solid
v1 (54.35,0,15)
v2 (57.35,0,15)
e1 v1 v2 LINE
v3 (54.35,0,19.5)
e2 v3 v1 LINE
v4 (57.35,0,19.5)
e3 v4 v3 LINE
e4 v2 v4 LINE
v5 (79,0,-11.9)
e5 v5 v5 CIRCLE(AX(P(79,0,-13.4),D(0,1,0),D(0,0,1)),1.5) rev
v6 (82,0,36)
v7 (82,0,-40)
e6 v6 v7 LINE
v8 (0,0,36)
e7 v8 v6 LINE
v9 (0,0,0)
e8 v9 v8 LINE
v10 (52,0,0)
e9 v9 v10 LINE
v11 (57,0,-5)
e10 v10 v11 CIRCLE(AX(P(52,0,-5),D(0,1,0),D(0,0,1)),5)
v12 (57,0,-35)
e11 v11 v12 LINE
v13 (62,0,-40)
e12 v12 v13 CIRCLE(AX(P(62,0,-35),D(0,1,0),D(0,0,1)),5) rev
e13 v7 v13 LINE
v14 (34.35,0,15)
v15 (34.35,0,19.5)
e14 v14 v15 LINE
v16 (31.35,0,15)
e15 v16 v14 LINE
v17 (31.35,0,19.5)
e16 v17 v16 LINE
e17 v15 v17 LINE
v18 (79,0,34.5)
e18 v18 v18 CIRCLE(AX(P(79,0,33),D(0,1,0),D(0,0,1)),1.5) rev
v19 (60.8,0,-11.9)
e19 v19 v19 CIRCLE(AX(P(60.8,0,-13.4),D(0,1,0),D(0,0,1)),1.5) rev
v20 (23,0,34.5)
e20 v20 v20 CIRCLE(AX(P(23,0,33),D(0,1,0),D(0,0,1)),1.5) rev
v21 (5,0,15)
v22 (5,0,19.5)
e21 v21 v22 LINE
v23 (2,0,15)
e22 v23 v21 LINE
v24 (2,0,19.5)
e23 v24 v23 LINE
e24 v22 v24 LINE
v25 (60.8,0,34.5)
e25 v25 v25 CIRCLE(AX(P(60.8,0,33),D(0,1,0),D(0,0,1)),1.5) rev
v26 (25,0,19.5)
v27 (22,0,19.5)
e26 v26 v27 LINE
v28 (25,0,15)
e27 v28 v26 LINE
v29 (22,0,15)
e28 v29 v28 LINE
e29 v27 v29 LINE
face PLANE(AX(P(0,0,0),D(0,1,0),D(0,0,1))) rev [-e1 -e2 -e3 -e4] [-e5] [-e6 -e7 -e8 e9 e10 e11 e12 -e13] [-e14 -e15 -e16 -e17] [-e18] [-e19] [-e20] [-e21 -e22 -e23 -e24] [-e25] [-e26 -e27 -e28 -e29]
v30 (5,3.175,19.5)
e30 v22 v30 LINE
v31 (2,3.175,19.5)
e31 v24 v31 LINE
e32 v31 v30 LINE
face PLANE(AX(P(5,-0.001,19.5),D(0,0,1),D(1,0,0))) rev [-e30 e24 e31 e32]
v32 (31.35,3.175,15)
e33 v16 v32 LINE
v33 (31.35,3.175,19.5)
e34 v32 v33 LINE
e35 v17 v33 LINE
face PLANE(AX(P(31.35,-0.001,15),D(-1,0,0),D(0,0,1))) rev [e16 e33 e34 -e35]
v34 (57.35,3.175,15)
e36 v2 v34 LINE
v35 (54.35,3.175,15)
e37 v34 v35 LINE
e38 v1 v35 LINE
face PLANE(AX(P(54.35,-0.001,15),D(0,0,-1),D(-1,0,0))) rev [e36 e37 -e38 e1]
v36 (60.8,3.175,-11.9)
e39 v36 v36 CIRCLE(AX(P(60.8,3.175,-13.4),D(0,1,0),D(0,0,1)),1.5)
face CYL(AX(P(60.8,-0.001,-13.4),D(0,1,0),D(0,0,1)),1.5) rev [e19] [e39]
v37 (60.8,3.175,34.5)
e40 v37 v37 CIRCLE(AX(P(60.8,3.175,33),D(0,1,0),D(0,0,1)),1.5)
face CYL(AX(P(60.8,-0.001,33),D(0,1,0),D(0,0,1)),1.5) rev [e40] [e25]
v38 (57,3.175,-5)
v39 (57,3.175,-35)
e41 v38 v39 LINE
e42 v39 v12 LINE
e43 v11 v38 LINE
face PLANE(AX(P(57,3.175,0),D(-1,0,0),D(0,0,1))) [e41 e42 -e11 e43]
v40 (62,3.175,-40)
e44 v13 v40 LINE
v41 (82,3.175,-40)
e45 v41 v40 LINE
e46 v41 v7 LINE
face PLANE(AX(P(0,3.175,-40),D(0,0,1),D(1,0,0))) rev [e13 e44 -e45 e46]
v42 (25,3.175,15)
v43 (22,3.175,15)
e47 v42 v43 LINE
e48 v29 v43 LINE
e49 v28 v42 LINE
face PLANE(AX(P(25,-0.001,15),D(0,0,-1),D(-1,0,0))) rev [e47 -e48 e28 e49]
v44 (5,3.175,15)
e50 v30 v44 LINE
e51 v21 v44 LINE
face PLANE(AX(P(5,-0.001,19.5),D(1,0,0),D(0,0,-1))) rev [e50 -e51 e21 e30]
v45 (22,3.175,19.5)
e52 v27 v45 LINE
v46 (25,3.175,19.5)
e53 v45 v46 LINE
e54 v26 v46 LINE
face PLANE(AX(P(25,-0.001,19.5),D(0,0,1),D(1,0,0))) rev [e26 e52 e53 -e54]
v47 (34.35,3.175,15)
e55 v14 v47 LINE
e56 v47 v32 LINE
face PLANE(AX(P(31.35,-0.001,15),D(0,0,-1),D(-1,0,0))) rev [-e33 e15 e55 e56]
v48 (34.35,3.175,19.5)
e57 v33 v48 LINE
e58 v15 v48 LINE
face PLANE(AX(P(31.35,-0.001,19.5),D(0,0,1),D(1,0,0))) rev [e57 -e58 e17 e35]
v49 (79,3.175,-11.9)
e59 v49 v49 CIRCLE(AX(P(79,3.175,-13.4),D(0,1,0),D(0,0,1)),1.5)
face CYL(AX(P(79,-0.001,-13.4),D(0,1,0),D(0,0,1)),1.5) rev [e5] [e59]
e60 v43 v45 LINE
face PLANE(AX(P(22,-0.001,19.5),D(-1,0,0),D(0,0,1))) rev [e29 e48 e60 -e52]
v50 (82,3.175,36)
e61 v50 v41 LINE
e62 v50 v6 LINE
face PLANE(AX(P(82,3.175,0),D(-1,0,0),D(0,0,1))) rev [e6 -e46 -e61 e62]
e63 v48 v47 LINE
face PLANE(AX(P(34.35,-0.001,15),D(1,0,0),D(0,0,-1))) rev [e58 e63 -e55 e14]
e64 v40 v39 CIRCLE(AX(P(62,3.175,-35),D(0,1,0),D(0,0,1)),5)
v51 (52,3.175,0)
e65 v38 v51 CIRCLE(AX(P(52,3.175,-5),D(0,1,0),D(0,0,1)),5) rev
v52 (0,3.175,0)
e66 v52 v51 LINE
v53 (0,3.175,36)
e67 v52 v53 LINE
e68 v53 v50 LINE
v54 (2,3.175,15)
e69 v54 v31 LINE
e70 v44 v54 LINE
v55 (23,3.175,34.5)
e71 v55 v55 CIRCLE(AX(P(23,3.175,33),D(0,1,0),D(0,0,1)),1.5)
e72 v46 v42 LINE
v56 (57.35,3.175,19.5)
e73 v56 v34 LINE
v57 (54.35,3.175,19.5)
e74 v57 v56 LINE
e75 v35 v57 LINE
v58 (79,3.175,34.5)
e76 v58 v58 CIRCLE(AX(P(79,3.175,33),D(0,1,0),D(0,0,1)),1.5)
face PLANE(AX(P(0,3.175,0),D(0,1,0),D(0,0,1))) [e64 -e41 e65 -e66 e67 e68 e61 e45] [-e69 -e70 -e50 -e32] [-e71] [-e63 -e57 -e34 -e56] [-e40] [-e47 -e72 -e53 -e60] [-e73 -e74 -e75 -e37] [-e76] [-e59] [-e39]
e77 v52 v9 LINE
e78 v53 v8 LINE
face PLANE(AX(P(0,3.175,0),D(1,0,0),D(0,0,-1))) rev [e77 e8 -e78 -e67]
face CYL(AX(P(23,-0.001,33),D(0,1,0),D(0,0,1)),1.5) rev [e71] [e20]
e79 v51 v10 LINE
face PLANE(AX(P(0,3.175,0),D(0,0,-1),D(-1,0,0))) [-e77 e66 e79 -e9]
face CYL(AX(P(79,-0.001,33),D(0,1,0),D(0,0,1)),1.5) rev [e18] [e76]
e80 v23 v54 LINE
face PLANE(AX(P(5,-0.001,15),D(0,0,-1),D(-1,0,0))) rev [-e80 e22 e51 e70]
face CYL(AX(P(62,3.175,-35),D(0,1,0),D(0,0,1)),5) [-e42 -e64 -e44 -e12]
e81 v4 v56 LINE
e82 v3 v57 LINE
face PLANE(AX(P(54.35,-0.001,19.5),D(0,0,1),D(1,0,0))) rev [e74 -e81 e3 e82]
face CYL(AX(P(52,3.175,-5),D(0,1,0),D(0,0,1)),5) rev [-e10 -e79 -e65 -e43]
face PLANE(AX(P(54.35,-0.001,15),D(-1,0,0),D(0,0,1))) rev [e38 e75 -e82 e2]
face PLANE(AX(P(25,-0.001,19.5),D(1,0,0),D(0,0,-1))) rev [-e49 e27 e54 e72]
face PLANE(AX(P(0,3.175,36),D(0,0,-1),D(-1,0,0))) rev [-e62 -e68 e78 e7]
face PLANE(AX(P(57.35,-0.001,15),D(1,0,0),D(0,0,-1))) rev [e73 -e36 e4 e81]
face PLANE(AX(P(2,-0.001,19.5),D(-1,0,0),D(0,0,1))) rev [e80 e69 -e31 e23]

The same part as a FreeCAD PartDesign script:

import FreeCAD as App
import Part
import Sketcher


def edges_at(feature, points):
    """Names of the edges that pass closest to the given points."""
    edges = feature.Shape.Edges
    near = lambda p: min(range(len(edges)), key=lambda i: edges[i].distToShape(Part.Vertex(*p))[0])
    return sorted({f"Edge{near(p) + 1}" for p in points})

doc = App.newDocument("Part")
body = doc.addObject("PartDesign::Body", "Body")

# Sketch on XZ plane
sketch1 = doc.addObject("Sketcher::SketchObject", "Sketch")
body.addObject(sketch1)
sketch1.AttachmentSupport = (doc.XZ_Plane, [""])
sketch1.MapMode = "FlatFace"
sketch1.addGeometry(Part.LineSegment(App.Vector(57, -40, 0), App.Vector(57, 0, 0)), False)
sketch1.addGeometry(Part.LineSegment(App.Vector(57, 0, 0), App.Vector(0, 0, 0)), False)
sketch1.addGeometry(Part.LineSegment(App.Vector(0, 0, 0), App.Vector(0, 36, 0)), False)
sketch1.addGeometry(Part.LineSegment(App.Vector(0, 36, 0), App.Vector(82, 36, 0)), False)
sketch1.addGeometry(Part.LineSegment(App.Vector(82, 36, 0), App.Vector(82, -40, 0)), False)
sketch1.addGeometry(Part.LineSegment(App.Vector(82, -40, 0), App.Vector(57, -40, 0)), False)
sketch1.addConstraint(Sketcher.Constraint("Coincident", 0, 2, 1, 1))
sketch1.addConstraint(Sketcher.Constraint("Coincident", 1, 2, 2, 1))
sketch1.addConstraint(Sketcher.Constraint("Coincident", 2, 2, 3, 1))
sketch1.addConstraint(Sketcher.Constraint("Coincident", 3, 2, 4, 1))
sketch1.addConstraint(Sketcher.Constraint("Coincident", 4, 2, 5, 1))
sketch1.addConstraint(Sketcher.Constraint("Coincident", 5, 2, 0, 1))
sketch1.addConstraint(Sketcher.Constraint("Vertical", 0))
sketch1.addConstraint(Sketcher.Constraint("Horizontal", 1))
sketch1.addConstraint(Sketcher.Constraint("Vertical", 2))
sketch1.addConstraint(Sketcher.Constraint("Horizontal", 3))
sketch1.addConstraint(Sketcher.Constraint("Vertical", 4))
sketch1.addConstraint(Sketcher.Constraint("Horizontal", 5))
sketch1.addConstraint(Sketcher.Constraint("Coincident", 1, 2, -1, 1))
sketch1.addConstraint(Sketcher.Constraint("DistanceX", 1, 2, 1, 1, 57.0))
sketch1.addConstraint(Sketcher.Constraint("DistanceX", 3, 1, 3, 2, 82.0))
sketch1.addConstraint(Sketcher.Constraint("DistanceY", 0, 1, 0, 2, 40.0))
sketch1.addConstraint(Sketcher.Constraint("DistanceY", 2, 1, 2, 2, 36.0))
pad1 = doc.addObject("PartDesign::Pad", "Pad")
body.addObject(pad1)
pad1.Profile = sketch1
pad1.Length = 3.175
pad1.Reversed = True

# Sketch on XZ plane
sketch2 = doc.addObject("Sketcher::SketchObject", "Sketch001")
body.addObject(sketch2)
sketch2.AttachmentSupport = (doc.XZ_Plane, [""])
sketch2.MapMode = "FlatFace"
sketch2.AttachmentOffset = App.Placement(App.Vector(0, 0, -3.175), App.Rotation())
sketch2.addGeometry(Part.Circle(App.Vector(79, 33, 0), App.Vector(0, 0, 1), 1.5), False)
sketch2.addConstraint(Sketcher.Constraint("Diameter", 0, 3.0))
sketch2.addConstraint(Sketcher.Constraint("DistanceX", -1, 1, 0, 3, 79.0))
sketch2.addConstraint(Sketcher.Constraint("DistanceY", -1, 1, 0, 3, 33.0))
pocket1 = doc.addObject("PartDesign::Pocket", "Pocket")
body.addObject(pocket1)
pocket1.Profile = sketch2
pocket1.Type = "UpToFirst"
pocket1.Reversed = True

# Sketch on XZ plane
sketch3 = doc.addObject("Sketcher::SketchObject", "Sketch002")
body.addObject(sketch3)
sketch3.AttachmentSupport = (doc.XZ_Plane, [""])
sketch3.MapMode = "FlatFace"
sketch3.AttachmentOffset = App.Placement(App.Vector(0, 0, -3.175), App.Rotation())
sketch3.addGeometry(Part.Circle(App.Vector(60.8, 33, 0), App.Vector(0, 0, 1), 1.5), False)
sketch3.addConstraint(Sketcher.Constraint("Diameter", 0, 3.0))
sketch3.addConstraint(Sketcher.Constraint("DistanceY", -1, 1, 0, 3, 33.0))
sketch3.addConstraint(Sketcher.Constraint("DistanceX", -1, 1, 0, 3, 60.8))
pocket2 = doc.addObject("PartDesign::Pocket", "Pocket001")
body.addObject(pocket2)
pocket2.Profile = sketch3
pocket2.Type = "UpToFirst"
pocket2.Reversed = True

# Sketch on XZ plane
sketch4 = doc.addObject("Sketcher::SketchObject", "Sketch003")
body.addObject(sketch4)
sketch4.AttachmentSupport = (doc.XZ_Plane, [""])
sketch4.MapMode = "FlatFace"
sketch4.AttachmentOffset = App.Placement(App.Vector(0, 0, -3.175), App.Rotation())
sketch4.addGeometry(Part.Circle(App.Vector(60.8, -13.4, 0), App.Vector(0, 0, 1), 1.5), False)
sketch4.addConstraint(Sketcher.Constraint("Diameter", 0, 3.0))
sketch4.addConstraint(Sketcher.Constraint("DistanceX", -1, 1, 0, 3, 60.8))
sketch4.addConstraint(Sketcher.Constraint("DistanceY", 0, 3, -1, 1, 13.4))
pocket3 = doc.addObject("PartDesign::Pocket", "Pocket002")
body.addObject(pocket3)
pocket3.Profile = sketch4
pocket3.Type = "UpToFirst"
pocket3.Reversed = True

# Sketch on XZ plane
sketch5 = doc.addObject("Sketcher::SketchObject", "Sketch004")
body.addObject(sketch5)
sketch5.AttachmentSupport = (doc.XZ_Plane, [""])
sketch5.MapMode = "FlatFace"
sketch5.AttachmentOffset = App.Placement(App.Vector(0, 0, -3.175), App.Rotation())
sketch5.addGeometry(Part.Circle(App.Vector(79, -13.4, 0), App.Vector(0, 0, 1), 1.5), False)
sketch5.addConstraint(Sketcher.Constraint("Diameter", 0, 3.0))
sketch5.addConstraint(Sketcher.Constraint("DistanceX", -1, 1, 0, 3, 79.0))
sketch5.addConstraint(Sketcher.Constraint("DistanceY", 0, 3, -1, 1, 13.4))
pocket4 = doc.addObject("PartDesign::Pocket", "Pocket003")
body.addObject(pocket4)
pocket4.Profile = sketch5
pocket4.Type = "UpToFirst"
pocket4.Reversed = True

# Sketch on XZ plane
sketch6 = doc.addObject("Sketcher::SketchObject", "Sketch005")
body.addObject(sketch6)
sketch6.AttachmentSupport = (doc.XZ_Plane, [""])
sketch6.MapMode = "FlatFace"
sketch6.AttachmentOffset = App.Placement(App.Vector(0, 0, -3.175), App.Rotation())
sketch6.addGeometry(Part.Circle(App.Vector(23, 33, 0), App.Vector(0, 0, 1), 1.5), False)
sketch6.addConstraint(Sketcher.Constraint("Diameter", 0, 3.0))
sketch6.addConstraint(Sketcher.Constraint("DistanceX", -1, 1, 0, 3, 23.0))
sketch6.addConstraint(Sketcher.Constraint("DistanceY", -1, 1, 0, 3, 33.0))
pocket5 = doc.addObject("PartDesign::Pocket", "Pocket004")
body.addObject(pocket5)
pocket5.Profile = sketch6
pocket5.Type = "UpToFirst"
pocket5.Reversed = True

# Sketch on XZ plane
sketch7 = doc.addObject("Sketcher::SketchObject", "Sketch006")
body.addObject(sketch7)
sketch7.AttachmentSupport = (doc.XZ_Plane, [""])
sketch7.MapMode = "FlatFace"
sketch7.AttachmentOffset = App.Placement(App.Vector(0, 0, -3.175), App.Rotation())
sketch7.addGeometry(Part.LineSegment(App.Vector(31.4, 15, 0), App.Vector(31.4, 19.5, 0)), False)
sketch7.addGeometry(Part.LineSegment(App.Vector(31.4, 19.5, 0), App.Vector(34.4, 19.5, 0)), False)
sketch7.addGeometry(Part.LineSegment(App.Vector(34.4, 19.5, 0), App.Vector(34.4, 15, 0)), False)
sketch7.addGeometry(Part.LineSegment(App.Vector(34.4, 15, 0), App.Vector(31.4, 15, 0)), False)
sketch7.addConstraint(Sketcher.Constraint("Coincident", 0, 2, 1, 1))
sketch7.addConstraint(Sketcher.Constraint("Coincident", 1, 2, 2, 1))
sketch7.addConstraint(Sketcher.Constraint("Coincident", 2, 2, 3, 1))
sketch7.addConstraint(Sketcher.Constraint("Coincident", 3, 2, 0, 1))
sketch7.addConstraint(Sketcher.Constraint("Vertical", 0))
sketch7.addConstraint(Sketcher.Constraint("Horizontal", 1))
sketch7.addConstraint(Sketcher.Constraint("Vertical", 2))
sketch7.addConstraint(Sketcher.Constraint("Horizontal", 3))
sketch7.addConstraint(Sketcher.Constraint("DistanceX", 1, 1, 1, 2, 3.0))
sketch7.addConstraint(Sketcher.Constraint("DistanceY", 0, 1, 0, 2, 4.5))
sketch7.addConstraint(Sketcher.Constraint("DistanceY", -1, 1, 2, 2, 15.0))
sketch7.addConstraint(Sketcher.Constraint("DistanceX", -1, 1, 0, 2, 31.35))
pocket6 = doc.addObject("PartDesign::Pocket", "Pocket005")
body.addObject(pocket6)
pocket6.Profile = sketch7
pocket6.Type = "UpToFirst"
pocket6.Reversed = True

# Sketch on XZ plane
sketch8 = doc.addObject("Sketcher::SketchObject", "Sketch007")
body.addObject(sketch8)
sketch8.AttachmentSupport = (doc.XZ_Plane, [""])
sketch8.MapMode = "FlatFace"
sketch8.AttachmentOffset = App.Placement(App.Vector(0, 0, -3.175), App.Rotation())
sketch8.addGeometry(Part.LineSegment(App.Vector(54.4, 15, 0), App.Vector(54.4, 19.5, 0)), False)
sketch8.addGeometry(Part.LineSegment(App.Vector(54.4, 19.5, 0), App.Vector(57.4, 19.5, 0)), False)
sketch8.addGeometry(Part.LineSegment(App.Vector(57.4, 19.5, 0), App.Vector(57.4, 15, 0)), False)
sketch8.addGeometry(Part.LineSegment(App.Vector(57.4, 15, 0), App.Vector(54.4, 15, 0)), False)
sketch8.addConstraint(Sketcher.Constraint("Coincident", 0, 2, 1, 1))
sketch8.addConstraint(Sketcher.Constraint("Coincident", 1, 2, 2, 1))
sketch8.addConstraint(Sketcher.Constraint("Coincident", 2, 2, 3, 1))
sketch8.addConstraint(Sketcher.Constraint("Coincident", 3, 2, 0, 1))
sketch8.addConstraint(Sketcher.Constraint("Vertical", 0))
sketch8.addConstraint(Sketcher.Constraint("Horizontal", 1))
sketch8.addConstraint(Sketcher.Constraint("Vertical", 2))
sketch8.addConstraint(Sketcher.Constraint("Horizontal", 3))
sketch8.addConstraint(Sketcher.Constraint("DistanceX", 1, 1, 1, 2, 3.0))
sketch8.addConstraint(Sketcher.Constraint("DistanceY", 0, 1, 0, 2, 4.5))
sketch8.addConstraint(Sketcher.Constraint("DistanceY", -1, 1, 2, 2, 15.0))
sketch8.addConstraint(Sketcher.Constraint("DistanceX", -1, 1, 0, 2, 54.35))
pocket7 = doc.addObject("PartDesign::Pocket", "Pocket006")
body.addObject(pocket7)
pocket7.Profile = sketch8
pocket7.Type = "UpToFirst"
pocket7.Reversed = True

# Sketch on XZ plane
sketch9 = doc.addObject("Sketcher::SketchObject", "Sketch008")
body.addObject(sketch9)
sketch9.AttachmentSupport = (doc.XZ_Plane, [""])
sketch9.MapMode = "FlatFace"
sketch9.AttachmentOffset = App.Placement(App.Vector(0, 0, -3.175), App.Rotation())
sketch9.addGeometry(Part.LineSegment(App.Vector(2, 15, 0), App.Vector(2, 19.5, 0)), False)
sketch9.addGeometry(Part.LineSegment(App.Vector(2, 19.5, 0), App.Vector(5, 19.5, 0)), False)
sketch9.addGeometry(Part.LineSegment(App.Vector(5, 19.5, 0), App.Vector(5, 15, 0)), False)
sketch9.addGeometry(Part.LineSegment(App.Vector(5, 15, 0), App.Vector(2, 15, 0)), False)
sketch9.addConstraint(Sketcher.Constraint("Coincident", 0, 2, 1, 1))
sketch9.addConstraint(Sketcher.Constraint("Coincident", 1, 2, 2, 1))
sketch9.addConstraint(Sketcher.Constraint("Coincident", 2, 2, 3, 1))
sketch9.addConstraint(Sketcher.Constraint("Coincident", 3, 2, 0, 1))
sketch9.addConstraint(Sketcher.Constraint("Vertical", 0))
sketch9.addConstraint(Sketcher.Constraint("Horizontal", 1))
sketch9.addConstraint(Sketcher.Constraint("Vertical", 2))
sketch9.addConstraint(Sketcher.Constraint("Horizontal", 3))
sketch9.addConstraint(Sketcher.Constraint("DistanceX", 1, 1, 1, 2, 3.0))
sketch9.addConstraint(Sketcher.Constraint("DistanceY", 0, 1, 0, 2, 4.5))
sketch9.addConstraint(Sketcher.Constraint("DistanceX", -1, 1, 0, 2, 2.0))
sketch9.addConstraint(Sketcher.Constraint("DistanceY", -1, 1, 2, 2, 15.0))
pocket8 = doc.addObject("PartDesign::Pocket", "Pocket007")
body.addObject(pocket8)
pocket8.Profile = sketch9
pocket8.Type = "UpToFirst"
pocket8.Reversed = True

# Sketch on XZ plane
sketch10 = doc.addObject("Sketcher::SketchObject", "Sketch009")
body.addObject(sketch10)
sketch10.AttachmentSupport = (doc.XZ_Plane, [""])
sketch10.MapMode = "FlatFace"
sketch10.AttachmentOffset = App.Placement(App.Vector(0, 0, -3.175), App.Rotation())
sketch10.addGeometry(Part.LineSegment(App.Vector(22, 15, 0), App.Vector(22, 19.5, 0)), False)
sketch10.addGeometry(Part.LineSegment(App.Vector(22, 19.5, 0), App.Vector(25, 19.5, 0)), False)
sketch10.addGeometry(Part.LineSegment(App.Vector(25, 19.5, 0), App.Vector(25, 15, 0)), False)
sketch10.addGeometry(Part.LineSegment(App.Vector(25, 15, 0), App.Vector(22, 15, 0)), False)
sketch10.addConstraint(Sketcher.Constraint("Coincident", 0, 2, 1, 1))
sketch10.addConstraint(Sketcher.Constraint("Coincident", 1, 2, 2, 1))
sketch10.addConstraint(Sketcher.Constraint("Coincident", 2, 2, 3, 1))
sketch10.addConstraint(Sketcher.Constraint("Coincident", 3, 2, 0, 1))
sketch10.addConstraint(Sketcher.Constraint("Vertical", 0))
sketch10.addConstraint(Sketcher.Constraint("Horizontal", 1))
sketch10.addConstraint(Sketcher.Constraint("Vertical", 2))
sketch10.addConstraint(Sketcher.Constraint("Horizontal", 3))
sketch10.addConstraint(Sketcher.Constraint("DistanceX", 1, 1, 1, 2, 3.0))
sketch10.addConstraint(Sketcher.Constraint("DistanceY", 0, 1, 0, 2, 4.5))
sketch10.addConstraint(Sketcher.Constraint("DistanceX", -1, 1, 0, 2, 22.0))
sketch10.addConstraint(Sketcher.Constraint("DistanceY", -1, 1, 2, 2, 15.0))
pocket9 = doc.addObject("PartDesign::Pocket", "Pocket008")
body.addObject(pocket9)
pocket9.Profile = sketch10
pocket9.Type = "UpToFirst"
pocket9.Reversed = True
doc.recompute()

fillet = doc.addObject("PartDesign::Fillet", "Fillet")
body.addObject(fillet)
fillet.Base = (pocket9, edges_at(pocket9, [(57, 1.587, -40), (57, 1.587, 0)]))
fillet.Radius = 5

doc.recompute()
